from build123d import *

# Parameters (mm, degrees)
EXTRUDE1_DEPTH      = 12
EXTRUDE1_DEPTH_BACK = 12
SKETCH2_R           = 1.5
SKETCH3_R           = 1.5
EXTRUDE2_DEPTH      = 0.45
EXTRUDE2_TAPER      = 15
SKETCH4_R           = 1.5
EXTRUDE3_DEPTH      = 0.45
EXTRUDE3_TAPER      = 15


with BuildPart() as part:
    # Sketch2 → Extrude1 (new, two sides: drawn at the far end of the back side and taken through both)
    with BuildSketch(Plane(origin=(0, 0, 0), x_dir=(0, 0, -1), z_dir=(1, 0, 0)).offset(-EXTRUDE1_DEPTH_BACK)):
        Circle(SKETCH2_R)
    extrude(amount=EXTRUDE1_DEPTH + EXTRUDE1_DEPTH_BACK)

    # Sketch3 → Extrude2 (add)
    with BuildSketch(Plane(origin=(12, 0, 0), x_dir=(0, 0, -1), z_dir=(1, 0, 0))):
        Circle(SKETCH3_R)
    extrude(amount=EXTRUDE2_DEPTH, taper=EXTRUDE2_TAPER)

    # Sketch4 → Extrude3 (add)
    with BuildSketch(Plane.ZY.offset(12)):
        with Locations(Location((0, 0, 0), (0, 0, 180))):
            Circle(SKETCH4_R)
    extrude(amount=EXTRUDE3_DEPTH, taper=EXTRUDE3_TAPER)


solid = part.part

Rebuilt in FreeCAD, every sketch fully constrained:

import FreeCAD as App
import Part
import Sketcher

V = App.Vector
Q = App.Units.Quantity

doc = App.newDocument("Part")
params = doc.addObject("Spreadsheet::Sheet", "Params")
for row, (alias, value) in enumerate([
    ("sketch1_diameter", "3 mm"),
    ("pad1_length", "12 mm"),
    ("pad1_length2", "12 mm"),
    ("sketch2_diameter", "3 mm"),
    ("pad2_length", "0.45 mm"),
    ("pad2_taper", "-15 deg"),
    ("sketch3_diameter", "3 mm"),
    ("pad3_length", "0.45 mm"),
    ("pad3_taper", "-15 deg"),
], start=1):
    params.set(f"A{row}", alias)
    params.set(f"B{row}", "=" + value)
    params.setAlias(f"B{row}", alias)

body = doc.addObject("PartDesign::Body", "Body")

sketch1 = body.newObject("Sketcher::SketchObject", "Sketch")
sketch1.AttachmentSupport = (doc.getObject("YZ_Plane"), [""])
sketch1.MapMode = "FlatFace"
sketch1.addGeometry(Part.Circle(V(0, 0, 0), V(0, 0, 1), 1.5), False)
sketch1.addConstraint([
    Sketcher.Constraint("Coincident", 0, 3, -1, 1),
    Sketcher.Constraint("Diameter", 0, Q("3 mm")),
])
sketch1.setExpression("Constraints[1]", "Params.sketch1_diameter")
pad1 = body.newObject("PartDesign::Pad", "Pad")
pad1.Profile = sketch1
pad1.Type = "TwoLengths"
pad1.setExpression("Length", "Params.pad1_length")
pad1.setExpression("Length2", "Params.pad1_length2")

sketch2 = body.newObject("Sketcher::SketchObject", "Sketch001")
sketch2.AttachmentSupport = (doc.getObject("YZ_Plane"), [""])
sketch2.MapMode = "FlatFace"
sketch2.AttachmentOffset = App.Placement(V(0, 0, 12), App.Rotation())
sketch2.addGeometry(Part.Circle(V(0, 0, 0), V(0, 0, 1), 1.5), False)
sketch2.addConstraint([
    Sketcher.Constraint("Coincident", 0, 3, -1, 1),
    Sketcher.Constraint("Diameter", 0, Q("3 mm")),
])
sketch2.setExpression("Constraints[1]", "Params.sketch2_diameter")
pad2 = body.newObject("PartDesign::Pad", "Pad001")
pad2.Profile = sketch2
pad2.setExpression("Length", "Params.pad2_length")
pad2.setExpression("TaperAngle", "Params.pad2_taper")

sketch3 = body.newObject("Sketcher::SketchObject", "Sketch002")
sketch3.AttachmentSupport = (doc.getObject("YZ_Plane"), [""])
sketch3.MapMode = "FlatFace"
sketch3.AttachmentOffset = App.Placement(V(0, 0, -12), App.Rotation())
sketch3.addGeometry(Part.Circle(V(0, 0, 0), V(0, 0, 1), 1.5), False)
sketch3.addConstraint([
    Sketcher.Constraint("Coincident", 0, 3, -1, 1),
    Sketcher.Constraint("Diameter", 0, Q("3 mm")),
])
sketch3.setExpression("Constraints[1]", "Params.sketch3_diameter")
pad3 = body.newObject("PartDesign::Pad", "Pad002")
pad3.Profile = sketch3
pad3.setExpression("Length", "Params.pad3_length")
pad3.Reversed = True
pad3.setExpression("TaperAngle", "Params.pad3_taper")

doc.recompute()
